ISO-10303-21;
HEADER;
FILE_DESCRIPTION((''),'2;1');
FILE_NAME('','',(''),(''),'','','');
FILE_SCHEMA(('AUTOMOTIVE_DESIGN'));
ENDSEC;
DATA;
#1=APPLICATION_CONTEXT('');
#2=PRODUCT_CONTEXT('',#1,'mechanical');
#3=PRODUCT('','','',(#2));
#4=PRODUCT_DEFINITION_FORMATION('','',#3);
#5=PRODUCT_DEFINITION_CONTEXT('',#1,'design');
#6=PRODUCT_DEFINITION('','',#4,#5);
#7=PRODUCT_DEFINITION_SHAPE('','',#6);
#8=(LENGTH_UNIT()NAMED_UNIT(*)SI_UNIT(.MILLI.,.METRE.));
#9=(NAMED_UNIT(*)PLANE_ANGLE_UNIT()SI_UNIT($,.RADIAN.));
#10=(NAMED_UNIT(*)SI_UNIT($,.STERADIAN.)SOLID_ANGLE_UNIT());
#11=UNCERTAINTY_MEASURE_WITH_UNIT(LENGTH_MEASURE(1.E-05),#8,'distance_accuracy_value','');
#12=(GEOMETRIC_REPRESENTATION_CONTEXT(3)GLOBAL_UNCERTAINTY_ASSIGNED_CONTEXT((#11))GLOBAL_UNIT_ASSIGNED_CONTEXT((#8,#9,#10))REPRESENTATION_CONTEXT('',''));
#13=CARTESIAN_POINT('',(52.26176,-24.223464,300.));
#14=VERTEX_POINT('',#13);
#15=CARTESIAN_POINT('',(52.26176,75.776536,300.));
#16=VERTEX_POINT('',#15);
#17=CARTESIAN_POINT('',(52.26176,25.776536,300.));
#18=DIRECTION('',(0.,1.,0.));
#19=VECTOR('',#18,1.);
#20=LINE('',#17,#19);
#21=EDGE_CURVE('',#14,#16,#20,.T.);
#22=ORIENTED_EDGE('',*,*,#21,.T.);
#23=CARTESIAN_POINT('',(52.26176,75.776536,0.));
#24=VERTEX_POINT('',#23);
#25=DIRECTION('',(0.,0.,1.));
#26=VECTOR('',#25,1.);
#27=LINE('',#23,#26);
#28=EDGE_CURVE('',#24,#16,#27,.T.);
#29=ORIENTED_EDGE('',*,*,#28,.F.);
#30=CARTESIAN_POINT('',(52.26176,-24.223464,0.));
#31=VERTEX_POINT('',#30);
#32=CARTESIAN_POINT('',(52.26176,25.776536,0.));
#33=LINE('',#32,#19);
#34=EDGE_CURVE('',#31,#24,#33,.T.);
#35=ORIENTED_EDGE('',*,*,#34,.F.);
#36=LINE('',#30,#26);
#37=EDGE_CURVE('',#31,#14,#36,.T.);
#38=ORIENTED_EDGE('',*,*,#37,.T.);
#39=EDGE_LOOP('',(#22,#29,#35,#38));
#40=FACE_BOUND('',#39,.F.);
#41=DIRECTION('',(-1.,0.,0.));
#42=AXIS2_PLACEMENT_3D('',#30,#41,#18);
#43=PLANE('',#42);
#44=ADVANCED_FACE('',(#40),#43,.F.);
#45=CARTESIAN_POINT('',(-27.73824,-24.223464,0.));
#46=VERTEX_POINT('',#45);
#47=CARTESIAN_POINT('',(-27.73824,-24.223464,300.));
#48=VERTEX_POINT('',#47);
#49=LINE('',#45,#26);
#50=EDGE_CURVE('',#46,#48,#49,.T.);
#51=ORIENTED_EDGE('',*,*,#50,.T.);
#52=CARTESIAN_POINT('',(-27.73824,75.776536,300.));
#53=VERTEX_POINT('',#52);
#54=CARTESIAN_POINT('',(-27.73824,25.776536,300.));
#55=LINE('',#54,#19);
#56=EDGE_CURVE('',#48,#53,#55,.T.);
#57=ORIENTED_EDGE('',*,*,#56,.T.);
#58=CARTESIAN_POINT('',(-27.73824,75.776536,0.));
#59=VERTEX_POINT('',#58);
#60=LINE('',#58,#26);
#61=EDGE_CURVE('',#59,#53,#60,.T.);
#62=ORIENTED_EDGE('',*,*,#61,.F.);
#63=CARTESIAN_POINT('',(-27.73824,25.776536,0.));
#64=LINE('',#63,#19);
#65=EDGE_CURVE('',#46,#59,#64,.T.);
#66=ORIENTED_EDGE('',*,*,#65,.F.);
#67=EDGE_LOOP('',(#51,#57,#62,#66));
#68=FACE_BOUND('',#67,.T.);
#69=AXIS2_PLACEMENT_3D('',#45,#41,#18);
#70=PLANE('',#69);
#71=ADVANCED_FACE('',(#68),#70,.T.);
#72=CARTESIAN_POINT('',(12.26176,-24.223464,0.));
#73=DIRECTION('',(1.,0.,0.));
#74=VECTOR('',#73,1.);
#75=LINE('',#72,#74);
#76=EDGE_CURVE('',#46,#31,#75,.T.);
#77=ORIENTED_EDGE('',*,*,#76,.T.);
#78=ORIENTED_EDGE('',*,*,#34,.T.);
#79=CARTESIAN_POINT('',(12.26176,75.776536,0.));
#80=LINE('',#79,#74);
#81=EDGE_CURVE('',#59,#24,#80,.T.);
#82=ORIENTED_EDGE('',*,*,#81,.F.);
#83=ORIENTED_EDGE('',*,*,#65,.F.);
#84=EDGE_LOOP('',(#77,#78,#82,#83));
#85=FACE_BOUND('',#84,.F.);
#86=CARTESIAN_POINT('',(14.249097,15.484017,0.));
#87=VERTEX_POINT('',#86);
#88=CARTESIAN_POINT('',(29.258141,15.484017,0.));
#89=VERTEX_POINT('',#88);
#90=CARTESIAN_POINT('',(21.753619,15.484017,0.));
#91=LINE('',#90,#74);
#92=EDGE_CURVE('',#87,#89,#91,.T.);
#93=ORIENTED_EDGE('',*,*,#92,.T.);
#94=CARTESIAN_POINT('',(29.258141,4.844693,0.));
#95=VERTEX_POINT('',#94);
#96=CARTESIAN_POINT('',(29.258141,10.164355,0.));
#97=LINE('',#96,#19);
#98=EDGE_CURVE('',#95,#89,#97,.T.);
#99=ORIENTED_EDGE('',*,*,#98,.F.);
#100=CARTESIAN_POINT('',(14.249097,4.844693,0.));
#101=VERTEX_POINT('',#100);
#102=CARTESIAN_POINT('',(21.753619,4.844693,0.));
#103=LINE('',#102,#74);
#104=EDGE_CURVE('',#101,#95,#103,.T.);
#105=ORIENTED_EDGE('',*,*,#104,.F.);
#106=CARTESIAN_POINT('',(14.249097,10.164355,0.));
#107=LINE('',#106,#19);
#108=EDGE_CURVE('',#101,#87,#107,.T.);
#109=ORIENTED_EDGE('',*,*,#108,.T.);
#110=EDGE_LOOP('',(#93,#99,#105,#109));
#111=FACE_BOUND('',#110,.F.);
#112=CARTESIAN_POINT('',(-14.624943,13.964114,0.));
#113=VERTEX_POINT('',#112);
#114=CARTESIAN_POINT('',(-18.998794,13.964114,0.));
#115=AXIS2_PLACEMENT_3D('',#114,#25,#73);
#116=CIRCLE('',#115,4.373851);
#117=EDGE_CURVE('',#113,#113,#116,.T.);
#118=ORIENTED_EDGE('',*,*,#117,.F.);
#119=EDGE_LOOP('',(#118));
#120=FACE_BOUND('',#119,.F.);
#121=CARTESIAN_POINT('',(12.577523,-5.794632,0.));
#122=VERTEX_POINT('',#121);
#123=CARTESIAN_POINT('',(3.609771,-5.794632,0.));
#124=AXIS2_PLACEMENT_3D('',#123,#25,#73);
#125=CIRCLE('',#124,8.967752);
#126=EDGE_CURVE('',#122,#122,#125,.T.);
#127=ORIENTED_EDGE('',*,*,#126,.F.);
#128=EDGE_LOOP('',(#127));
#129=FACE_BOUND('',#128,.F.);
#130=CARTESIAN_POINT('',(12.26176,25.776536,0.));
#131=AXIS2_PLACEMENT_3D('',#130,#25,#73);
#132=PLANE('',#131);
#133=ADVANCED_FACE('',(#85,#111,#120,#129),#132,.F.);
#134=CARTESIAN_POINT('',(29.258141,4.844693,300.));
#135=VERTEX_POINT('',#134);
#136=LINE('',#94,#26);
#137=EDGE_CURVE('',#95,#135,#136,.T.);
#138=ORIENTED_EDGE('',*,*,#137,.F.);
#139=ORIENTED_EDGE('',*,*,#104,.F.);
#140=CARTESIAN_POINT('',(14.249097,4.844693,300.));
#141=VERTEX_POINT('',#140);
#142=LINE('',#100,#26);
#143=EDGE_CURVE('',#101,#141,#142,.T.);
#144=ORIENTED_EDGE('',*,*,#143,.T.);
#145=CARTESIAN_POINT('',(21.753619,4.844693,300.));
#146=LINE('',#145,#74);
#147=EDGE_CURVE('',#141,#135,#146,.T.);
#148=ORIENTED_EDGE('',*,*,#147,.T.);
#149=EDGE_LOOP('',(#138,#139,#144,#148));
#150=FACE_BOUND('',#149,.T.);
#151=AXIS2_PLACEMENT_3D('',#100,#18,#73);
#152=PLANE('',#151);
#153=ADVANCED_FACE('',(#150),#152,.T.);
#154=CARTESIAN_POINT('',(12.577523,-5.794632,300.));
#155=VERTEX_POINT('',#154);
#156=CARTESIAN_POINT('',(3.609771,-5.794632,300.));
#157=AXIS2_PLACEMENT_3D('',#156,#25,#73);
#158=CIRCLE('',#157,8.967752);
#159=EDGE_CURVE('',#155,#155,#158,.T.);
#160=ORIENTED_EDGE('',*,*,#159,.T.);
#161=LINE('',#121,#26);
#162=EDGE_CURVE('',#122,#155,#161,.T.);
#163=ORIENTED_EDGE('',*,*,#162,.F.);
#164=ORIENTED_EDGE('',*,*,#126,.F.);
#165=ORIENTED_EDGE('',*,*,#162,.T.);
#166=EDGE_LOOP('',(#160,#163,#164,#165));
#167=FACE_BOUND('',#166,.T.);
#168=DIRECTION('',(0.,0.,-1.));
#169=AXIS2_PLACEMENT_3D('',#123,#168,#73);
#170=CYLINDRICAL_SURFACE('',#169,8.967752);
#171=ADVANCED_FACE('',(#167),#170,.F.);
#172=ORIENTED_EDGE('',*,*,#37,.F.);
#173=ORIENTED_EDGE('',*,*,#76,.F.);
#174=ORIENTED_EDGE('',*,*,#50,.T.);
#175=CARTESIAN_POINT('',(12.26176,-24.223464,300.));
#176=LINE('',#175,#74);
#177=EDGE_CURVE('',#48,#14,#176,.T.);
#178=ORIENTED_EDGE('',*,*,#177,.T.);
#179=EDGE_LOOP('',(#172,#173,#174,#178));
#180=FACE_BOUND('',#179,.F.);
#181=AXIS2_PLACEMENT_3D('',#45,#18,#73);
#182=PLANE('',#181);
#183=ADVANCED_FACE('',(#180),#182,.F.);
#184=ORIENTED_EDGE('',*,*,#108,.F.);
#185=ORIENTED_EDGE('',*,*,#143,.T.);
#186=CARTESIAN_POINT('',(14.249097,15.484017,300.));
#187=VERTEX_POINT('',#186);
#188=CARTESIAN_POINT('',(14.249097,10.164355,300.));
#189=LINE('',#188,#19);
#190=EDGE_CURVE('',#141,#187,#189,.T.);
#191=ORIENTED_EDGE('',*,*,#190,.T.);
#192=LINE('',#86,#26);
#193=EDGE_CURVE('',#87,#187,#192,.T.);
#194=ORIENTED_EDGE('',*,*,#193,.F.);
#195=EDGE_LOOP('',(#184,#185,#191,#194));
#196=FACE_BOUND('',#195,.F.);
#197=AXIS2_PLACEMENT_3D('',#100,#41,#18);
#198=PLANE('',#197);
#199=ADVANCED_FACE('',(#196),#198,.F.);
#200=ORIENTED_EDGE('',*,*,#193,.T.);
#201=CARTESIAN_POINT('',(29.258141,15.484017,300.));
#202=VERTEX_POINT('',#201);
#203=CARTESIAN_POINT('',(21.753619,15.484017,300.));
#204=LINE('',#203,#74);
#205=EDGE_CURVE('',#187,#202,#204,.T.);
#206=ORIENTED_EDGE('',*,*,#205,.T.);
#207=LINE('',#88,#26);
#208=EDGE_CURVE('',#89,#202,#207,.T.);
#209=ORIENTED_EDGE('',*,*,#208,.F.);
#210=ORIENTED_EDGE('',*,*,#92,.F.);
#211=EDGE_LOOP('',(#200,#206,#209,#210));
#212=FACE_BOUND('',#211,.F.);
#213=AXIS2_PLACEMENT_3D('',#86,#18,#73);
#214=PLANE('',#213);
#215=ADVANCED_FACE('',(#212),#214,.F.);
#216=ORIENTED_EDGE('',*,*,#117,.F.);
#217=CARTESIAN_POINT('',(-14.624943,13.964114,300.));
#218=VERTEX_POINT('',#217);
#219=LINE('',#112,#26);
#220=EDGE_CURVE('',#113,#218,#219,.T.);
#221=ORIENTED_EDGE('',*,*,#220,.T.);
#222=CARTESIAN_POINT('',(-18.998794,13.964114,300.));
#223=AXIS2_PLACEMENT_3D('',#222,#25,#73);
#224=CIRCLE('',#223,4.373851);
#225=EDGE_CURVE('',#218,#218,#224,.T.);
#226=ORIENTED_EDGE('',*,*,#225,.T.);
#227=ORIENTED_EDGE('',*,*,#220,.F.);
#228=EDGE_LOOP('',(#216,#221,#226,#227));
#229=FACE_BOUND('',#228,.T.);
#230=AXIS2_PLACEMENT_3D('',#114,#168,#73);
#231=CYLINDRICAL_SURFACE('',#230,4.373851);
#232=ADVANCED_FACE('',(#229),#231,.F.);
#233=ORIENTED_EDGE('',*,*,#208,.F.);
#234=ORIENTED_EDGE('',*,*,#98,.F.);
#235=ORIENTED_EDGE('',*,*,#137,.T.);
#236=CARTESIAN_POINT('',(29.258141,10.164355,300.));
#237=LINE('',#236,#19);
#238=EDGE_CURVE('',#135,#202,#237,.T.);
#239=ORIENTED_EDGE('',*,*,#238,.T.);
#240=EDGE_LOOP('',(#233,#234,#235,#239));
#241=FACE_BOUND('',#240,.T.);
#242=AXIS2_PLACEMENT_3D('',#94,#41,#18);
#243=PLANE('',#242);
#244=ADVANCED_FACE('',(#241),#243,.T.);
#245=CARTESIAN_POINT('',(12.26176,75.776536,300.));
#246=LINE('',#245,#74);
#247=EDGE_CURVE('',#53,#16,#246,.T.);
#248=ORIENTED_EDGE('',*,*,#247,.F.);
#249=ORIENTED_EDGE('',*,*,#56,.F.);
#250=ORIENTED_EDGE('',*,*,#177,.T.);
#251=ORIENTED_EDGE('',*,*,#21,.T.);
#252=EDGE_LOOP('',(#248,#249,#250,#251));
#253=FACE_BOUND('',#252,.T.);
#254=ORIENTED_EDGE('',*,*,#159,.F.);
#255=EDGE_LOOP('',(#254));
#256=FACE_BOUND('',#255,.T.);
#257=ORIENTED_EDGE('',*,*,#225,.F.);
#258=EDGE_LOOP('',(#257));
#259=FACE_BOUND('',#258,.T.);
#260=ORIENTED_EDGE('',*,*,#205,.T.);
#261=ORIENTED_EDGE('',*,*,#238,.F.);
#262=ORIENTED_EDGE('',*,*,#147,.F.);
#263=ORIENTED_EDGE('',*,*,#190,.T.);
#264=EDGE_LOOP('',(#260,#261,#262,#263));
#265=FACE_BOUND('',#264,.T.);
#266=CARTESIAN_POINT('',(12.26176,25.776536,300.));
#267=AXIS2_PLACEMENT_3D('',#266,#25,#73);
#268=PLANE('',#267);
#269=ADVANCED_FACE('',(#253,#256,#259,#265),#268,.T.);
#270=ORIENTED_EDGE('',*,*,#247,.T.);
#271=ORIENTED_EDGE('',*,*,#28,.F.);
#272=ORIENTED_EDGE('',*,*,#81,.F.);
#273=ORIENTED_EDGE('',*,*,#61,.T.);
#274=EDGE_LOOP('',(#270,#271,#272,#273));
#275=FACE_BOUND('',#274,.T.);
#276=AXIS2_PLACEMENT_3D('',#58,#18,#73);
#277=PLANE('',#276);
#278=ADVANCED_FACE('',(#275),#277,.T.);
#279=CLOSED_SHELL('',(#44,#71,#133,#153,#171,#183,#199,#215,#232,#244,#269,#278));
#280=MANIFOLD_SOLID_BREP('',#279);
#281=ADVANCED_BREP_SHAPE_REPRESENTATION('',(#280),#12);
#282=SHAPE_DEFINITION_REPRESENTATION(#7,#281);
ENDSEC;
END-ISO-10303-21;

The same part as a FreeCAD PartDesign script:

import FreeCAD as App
import Part
import Sketcher

V = App.Vector
Q = App.Units.Quantity

doc = App.newDocument("Part")
body = doc.addObject("PartDesign::Body", "Body")

sketch1 = body.newObject("Sketcher::SketchObject", "Sketch")
sketch1.AttachmentSupport = (doc.getObject("XY_Plane"), [""])
sketch1.MapMode = "FlatFace"
sketch1.addGeometry([
    Part.LineSegment(V(-27.7, 75.8, 0), V(-27.7, -24.2, 0)),
    Part.LineSegment(V(-27.7, -24.2, 0), V(52.3, -24.2, 0)),
    Part.LineSegment(V(52.3, -24.2, 0), V(52.3, 75.8, 0)),
    Part.LineSegment(V(52.3, 75.8, 0), V(-27.7, 75.8, 0)),
    Part.Circle(V(3.6, -5.8, 0), V(0, 0, 1), 9),
    Part.Circle(V(-19, 14, 0), V(0, 0, 1), 4.4),
    Part.LineSegment(V(29.3, 4.8, 0), V(14.2, 4.8, 0)),
    Part.LineSegment(V(14.2, 4.8, 0), V(14.2, 15.5, 0)),
    Part.LineSegment(V(14.2, 15.5, 0), V(29.3, 15.5, 0)),
    Part.LineSegment(V(29.3, 15.5, 0), V(29.3, 4.8, 0)),
], False)
sketch1.addConstraint([
    Sketcher.Constraint("Coincident", 0, 2, 1, 1),
    Sketcher.Constraint("Coincident", 1, 2, 2, 1),
    Sketcher.Constraint("Coincident", 2, 2, 3, 1),
    Sketcher.Constraint("Coincident", 3, 2, 0, 1),
    Sketcher.Constraint("Coincident", 6, 2, 7, 1),
    Sketcher.Constraint("Coincident", 7, 2, 8, 1),
    Sketcher.Constraint("Coincident", 8, 2, 9, 1),
    Sketcher.Constraint("Coincident", 9, 2, 6, 1),
    Sketcher.Constraint("Vertical", 0),
    Sketcher.Constraint("Horizontal", 1),
    Sketcher.Constraint("Vertical", 2),
    Sketcher.Constraint("Horizontal", 3),
    Sketcher.Constraint("Horizontal", 6),
    Sketcher.Constraint("Vertical", 7),
    Sketcher.Constraint("Horizontal", 8),
    Sketcher.Constraint("Vertical", 9),
    Sketcher.Constraint("DistanceX", 1, 1, 1, 2, Q("80 mm")),
    Sketcher.Constraint("DistanceY", 0, 2, 0, 1, Q("100 mm")),
    Sketcher.Constraint("Diameter", 4, Q("17.935504 mm")),
    Sketcher.Constraint("Diameter", 5, Q("8.747702 mm")),
    Sketcher.Constraint("DistanceX", 6, 2, 6, 1, Q("15.009044 mm")),
    Sketcher.Constraint("DistanceY", 7, 1, 7, 2, Q("10.639324 mm")),
    Sketcher.Constraint("DistanceX", -1, 1, 4, 3, Q("3.609771 mm")),
    Sketcher.Constraint("DistanceX", 0, 2, -1, 1, Q("27.73824 mm")),
    Sketcher.Constraint("DistanceX", -1, 1, 8, 2, Q("29.258141 mm")),
    Sketcher.Constraint("DistanceY", 0, 2, 4, 3, Q("18.428832 mm")),
    Sketcher.Constraint("DistanceY", 0, 2, 5, 3, Q("38.187578 mm")),
    Sketcher.Constraint("DistanceX", 5, 3, 6, 2, Q("33.247891 mm")),
    Sketcher.Constraint("DistanceY", 6, 2, 5, 3, Q("9.119421 mm")),
    Sketcher.Constraint("DistanceY", 4, 3, -1, 1, Q("5.794632 mm")),
])
pad1 = body.newObject("PartDesign::Pad", "Pad")
pad1.Profile = sketch1
pad1.Length = 300

doc.recompute()
